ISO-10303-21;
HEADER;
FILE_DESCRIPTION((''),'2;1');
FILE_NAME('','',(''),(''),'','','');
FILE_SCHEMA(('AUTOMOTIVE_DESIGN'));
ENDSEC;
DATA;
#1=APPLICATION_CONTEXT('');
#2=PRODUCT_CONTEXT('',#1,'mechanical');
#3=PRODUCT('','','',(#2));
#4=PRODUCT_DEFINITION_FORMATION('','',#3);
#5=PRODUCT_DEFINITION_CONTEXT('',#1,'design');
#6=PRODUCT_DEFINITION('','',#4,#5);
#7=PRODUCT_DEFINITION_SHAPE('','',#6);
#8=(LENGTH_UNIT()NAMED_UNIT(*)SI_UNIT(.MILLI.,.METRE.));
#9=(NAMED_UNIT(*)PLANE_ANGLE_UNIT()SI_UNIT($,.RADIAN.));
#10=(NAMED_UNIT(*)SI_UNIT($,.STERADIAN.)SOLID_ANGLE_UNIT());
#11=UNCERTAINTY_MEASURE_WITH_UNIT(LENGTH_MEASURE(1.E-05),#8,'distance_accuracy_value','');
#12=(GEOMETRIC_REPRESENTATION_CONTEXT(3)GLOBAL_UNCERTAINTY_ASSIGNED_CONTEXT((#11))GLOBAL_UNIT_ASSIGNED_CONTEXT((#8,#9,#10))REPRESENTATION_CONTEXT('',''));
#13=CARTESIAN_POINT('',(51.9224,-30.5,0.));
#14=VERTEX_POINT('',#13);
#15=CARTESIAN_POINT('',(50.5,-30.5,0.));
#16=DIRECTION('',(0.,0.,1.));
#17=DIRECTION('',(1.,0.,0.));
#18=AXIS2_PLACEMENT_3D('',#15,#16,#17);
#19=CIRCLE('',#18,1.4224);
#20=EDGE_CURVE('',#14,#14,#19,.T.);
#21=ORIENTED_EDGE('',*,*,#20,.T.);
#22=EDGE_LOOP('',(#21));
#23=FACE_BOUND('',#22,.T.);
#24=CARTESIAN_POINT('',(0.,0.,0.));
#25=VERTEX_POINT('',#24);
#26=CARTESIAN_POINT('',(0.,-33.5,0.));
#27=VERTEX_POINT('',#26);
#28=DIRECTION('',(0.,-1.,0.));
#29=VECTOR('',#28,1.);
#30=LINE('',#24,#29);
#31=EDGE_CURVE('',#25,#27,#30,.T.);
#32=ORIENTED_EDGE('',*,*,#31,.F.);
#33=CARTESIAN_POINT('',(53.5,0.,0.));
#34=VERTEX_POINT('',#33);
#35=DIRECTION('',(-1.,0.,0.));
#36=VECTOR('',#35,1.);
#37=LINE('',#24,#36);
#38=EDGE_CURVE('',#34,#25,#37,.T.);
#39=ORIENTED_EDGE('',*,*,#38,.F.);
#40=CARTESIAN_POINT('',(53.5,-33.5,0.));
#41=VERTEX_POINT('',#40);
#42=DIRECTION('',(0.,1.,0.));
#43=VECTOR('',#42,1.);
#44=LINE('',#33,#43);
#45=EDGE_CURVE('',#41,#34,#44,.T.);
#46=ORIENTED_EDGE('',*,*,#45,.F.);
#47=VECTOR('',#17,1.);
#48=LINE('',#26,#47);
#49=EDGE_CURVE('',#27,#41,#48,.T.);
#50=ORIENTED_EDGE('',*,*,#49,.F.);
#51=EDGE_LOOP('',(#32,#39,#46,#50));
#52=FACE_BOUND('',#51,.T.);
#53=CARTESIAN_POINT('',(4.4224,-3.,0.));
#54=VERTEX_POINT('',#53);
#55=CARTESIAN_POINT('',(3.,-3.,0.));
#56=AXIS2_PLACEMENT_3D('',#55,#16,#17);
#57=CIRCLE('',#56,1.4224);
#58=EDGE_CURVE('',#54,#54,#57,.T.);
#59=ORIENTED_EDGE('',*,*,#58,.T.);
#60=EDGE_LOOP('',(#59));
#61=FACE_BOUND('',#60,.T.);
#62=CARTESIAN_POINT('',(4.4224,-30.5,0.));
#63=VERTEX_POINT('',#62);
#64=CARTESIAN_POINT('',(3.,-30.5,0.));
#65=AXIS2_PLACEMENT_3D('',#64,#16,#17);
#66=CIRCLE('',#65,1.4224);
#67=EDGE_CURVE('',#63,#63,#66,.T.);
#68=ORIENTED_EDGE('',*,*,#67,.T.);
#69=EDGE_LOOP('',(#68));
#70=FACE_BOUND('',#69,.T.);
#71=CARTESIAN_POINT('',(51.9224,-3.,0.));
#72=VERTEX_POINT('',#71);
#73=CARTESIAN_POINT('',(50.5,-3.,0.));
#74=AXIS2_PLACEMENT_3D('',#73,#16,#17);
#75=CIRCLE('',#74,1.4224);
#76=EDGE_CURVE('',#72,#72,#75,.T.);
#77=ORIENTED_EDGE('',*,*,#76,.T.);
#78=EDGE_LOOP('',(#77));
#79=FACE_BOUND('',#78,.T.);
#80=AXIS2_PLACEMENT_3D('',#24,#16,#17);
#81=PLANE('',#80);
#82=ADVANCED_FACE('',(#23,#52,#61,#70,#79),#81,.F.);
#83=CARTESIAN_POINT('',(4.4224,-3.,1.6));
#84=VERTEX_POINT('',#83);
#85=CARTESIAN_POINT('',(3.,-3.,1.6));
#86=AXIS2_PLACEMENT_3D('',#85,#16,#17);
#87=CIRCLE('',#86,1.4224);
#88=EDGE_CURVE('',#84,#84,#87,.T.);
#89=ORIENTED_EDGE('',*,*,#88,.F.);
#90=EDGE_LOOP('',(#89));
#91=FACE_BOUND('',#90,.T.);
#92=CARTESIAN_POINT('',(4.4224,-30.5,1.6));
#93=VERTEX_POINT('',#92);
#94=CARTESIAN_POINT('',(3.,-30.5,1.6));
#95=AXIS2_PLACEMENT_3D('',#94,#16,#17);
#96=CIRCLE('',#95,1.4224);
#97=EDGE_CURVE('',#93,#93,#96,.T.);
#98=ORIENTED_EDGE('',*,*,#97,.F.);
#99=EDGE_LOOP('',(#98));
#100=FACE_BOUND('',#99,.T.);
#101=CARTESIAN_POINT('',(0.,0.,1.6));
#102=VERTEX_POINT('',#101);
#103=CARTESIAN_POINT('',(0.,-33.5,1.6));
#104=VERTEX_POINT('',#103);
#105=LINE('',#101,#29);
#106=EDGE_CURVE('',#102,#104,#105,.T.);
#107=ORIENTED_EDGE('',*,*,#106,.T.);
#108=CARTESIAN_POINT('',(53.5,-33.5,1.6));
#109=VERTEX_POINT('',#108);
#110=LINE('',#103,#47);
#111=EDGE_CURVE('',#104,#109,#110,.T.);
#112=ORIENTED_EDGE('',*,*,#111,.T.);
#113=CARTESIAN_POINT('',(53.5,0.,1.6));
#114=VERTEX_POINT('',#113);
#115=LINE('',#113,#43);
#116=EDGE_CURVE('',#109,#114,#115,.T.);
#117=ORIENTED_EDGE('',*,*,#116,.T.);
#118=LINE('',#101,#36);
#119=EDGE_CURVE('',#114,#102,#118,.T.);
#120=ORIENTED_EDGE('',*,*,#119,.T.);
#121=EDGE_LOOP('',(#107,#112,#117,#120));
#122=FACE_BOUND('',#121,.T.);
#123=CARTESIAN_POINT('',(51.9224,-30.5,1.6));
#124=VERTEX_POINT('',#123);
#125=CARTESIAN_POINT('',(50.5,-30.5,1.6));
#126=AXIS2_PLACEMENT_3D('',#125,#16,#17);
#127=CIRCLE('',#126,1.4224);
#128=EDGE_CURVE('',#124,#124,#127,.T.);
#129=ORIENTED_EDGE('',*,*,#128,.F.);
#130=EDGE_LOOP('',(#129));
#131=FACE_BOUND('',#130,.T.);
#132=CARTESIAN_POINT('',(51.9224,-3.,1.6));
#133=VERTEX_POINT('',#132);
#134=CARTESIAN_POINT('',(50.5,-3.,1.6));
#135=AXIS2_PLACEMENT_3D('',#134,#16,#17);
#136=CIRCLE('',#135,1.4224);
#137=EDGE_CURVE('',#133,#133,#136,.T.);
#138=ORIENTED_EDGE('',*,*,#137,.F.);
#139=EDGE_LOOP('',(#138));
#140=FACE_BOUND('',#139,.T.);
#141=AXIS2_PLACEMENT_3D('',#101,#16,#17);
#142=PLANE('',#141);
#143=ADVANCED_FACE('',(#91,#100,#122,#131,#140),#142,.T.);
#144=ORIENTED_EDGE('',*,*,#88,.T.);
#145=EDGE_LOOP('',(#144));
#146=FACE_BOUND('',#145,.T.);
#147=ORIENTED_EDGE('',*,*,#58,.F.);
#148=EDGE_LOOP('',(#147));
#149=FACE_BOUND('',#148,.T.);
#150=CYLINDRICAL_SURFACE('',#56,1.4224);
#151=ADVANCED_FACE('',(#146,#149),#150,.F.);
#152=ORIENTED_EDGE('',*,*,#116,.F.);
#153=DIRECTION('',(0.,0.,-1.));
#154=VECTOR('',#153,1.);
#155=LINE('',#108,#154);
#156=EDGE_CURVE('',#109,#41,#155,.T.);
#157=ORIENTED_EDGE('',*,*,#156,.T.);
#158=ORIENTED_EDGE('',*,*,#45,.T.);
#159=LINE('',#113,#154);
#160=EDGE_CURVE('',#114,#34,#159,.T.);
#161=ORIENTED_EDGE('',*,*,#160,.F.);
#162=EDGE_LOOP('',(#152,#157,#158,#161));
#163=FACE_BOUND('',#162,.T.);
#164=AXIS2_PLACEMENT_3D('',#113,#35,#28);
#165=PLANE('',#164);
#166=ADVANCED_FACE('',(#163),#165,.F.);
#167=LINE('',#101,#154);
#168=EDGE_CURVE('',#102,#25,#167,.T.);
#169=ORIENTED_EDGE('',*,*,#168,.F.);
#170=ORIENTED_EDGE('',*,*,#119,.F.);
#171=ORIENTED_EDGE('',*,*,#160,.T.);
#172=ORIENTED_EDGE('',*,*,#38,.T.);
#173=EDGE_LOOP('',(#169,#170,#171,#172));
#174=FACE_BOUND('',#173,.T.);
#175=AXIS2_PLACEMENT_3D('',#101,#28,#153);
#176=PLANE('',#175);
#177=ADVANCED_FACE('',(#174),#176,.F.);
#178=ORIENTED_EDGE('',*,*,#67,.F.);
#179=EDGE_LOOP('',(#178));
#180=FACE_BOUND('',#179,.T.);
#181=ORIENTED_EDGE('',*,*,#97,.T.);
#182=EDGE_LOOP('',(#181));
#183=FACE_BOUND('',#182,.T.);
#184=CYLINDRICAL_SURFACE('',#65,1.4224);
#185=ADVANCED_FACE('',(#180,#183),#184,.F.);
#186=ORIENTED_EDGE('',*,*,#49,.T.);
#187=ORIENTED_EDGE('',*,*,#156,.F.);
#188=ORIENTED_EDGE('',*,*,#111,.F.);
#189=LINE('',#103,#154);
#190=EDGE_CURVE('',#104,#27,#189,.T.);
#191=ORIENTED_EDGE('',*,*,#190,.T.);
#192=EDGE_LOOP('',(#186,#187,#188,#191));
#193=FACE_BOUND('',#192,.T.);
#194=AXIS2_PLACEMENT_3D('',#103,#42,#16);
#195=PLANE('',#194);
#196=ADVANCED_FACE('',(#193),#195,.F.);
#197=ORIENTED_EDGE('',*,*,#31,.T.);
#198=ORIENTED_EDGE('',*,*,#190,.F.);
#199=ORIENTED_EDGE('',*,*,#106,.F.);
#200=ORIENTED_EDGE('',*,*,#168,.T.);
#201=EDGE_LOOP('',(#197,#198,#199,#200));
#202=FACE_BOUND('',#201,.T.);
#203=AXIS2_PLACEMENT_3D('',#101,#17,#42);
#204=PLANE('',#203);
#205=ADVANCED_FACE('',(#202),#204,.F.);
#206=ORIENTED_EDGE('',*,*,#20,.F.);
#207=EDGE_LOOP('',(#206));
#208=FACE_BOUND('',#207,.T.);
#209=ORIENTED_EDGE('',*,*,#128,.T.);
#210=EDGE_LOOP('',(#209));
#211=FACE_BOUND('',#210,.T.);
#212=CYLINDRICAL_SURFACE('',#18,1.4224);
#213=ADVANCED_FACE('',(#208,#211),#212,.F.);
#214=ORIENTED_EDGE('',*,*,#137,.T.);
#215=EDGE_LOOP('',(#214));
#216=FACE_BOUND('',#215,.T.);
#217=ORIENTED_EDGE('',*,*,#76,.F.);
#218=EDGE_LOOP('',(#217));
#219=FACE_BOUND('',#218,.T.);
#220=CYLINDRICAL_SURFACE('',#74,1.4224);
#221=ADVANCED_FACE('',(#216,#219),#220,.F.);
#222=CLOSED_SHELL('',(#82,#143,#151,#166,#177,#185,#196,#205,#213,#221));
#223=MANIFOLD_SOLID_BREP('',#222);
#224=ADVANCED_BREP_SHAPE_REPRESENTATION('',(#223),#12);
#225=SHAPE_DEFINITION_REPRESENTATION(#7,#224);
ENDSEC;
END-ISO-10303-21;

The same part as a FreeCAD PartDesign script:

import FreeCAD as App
import Part
import Sketcher

V = App.Vector

doc = App.newDocument("Part")
body = doc.addObject("PartDesign::Body", "Body")

# Sketch on XY plane
sketch1 = body.newObject("Sketcher::SketchObject", "Sketch")
sketch1.AttachmentSupport = (doc.getObject("XY_Plane"), [""])
sketch1.MapMode = "FlatFace"
sketch1.addGeometry(Part.LineSegment(V(0, 0, 0), V(0, -33.5, 0)), False)
sketch1.addGeometry(Part.LineSegment(V(0, -33.5, 0), V(53.5, -33.5, 0)), False)
sketch1.addGeometry(Part.LineSegment(V(53.5, -33.5, 0), V(53.5, 0, 0)), False)
sketch1.addGeometry(Part.LineSegment(V(53.5, 0, 0), V(0, 0, 0)), False)
sketch1.addConstraint(Sketcher.Constraint("Coincident", 0, 2, 1, 1))
sketch1.addConstraint(Sketcher.Constraint("Coincident", 1, 2, 2, 1))
sketch1.addConstraint(Sketcher.Constraint("Coincident", 2, 2, 3, 1))
sketch1.addConstraint(Sketcher.Constraint("Coincident", 3, 2, 0, 1))
sketch1.addConstraint(Sketcher.Constraint("Vertical", 0))
sketch1.addConstraint(Sketcher.Constraint("Horizontal", 1))
sketch1.addConstraint(Sketcher.Constraint("Vertical", 2))
sketch1.addConstraint(Sketcher.Constraint("Horizontal", 3))
sketch1.addConstraint(Sketcher.Constraint("Coincident", 3, 2, -1, 1))
sketch1.addConstraint(Sketcher.Constraint("DistanceX", 1, 1, 1, 2, 53.5))
sketch1.addConstraint(Sketcher.Constraint("DistanceY", 0, 2, 0, 1, 33.5))
pad1 = body.newObject("PartDesign::Pad", "Pad")
pad1.Profile = sketch1
pad1.Length = 1.6

# Sketch on XY plane
sketch2 = body.newObject("Sketcher::SketchObject", "Sketch001")
sketch2.AttachmentSupport = (doc.getObject("XY_Plane"), [""])
sketch2.MapMode = "FlatFace"
sketch2.AttachmentOffset = App.Placement(V(0, 0, 1.6), App.Rotation())
sketch2.addGeometry(Part.Circle(V(3, -3, 0), V(0, 0, 1), 1.4224), False)
sketch2.addGeometry(Part.Circle(V(50.5, -3, 0), V(0, 0, 1), 1.4224), False)
sketch2.addGeometry(Part.Circle(V(3, -30.5, 0), V(0, 0, 1), 1.4224), False)
sketch2.addGeometry(Part.Circle(V(50.5, -30.5, 0), V(0, 0, 1), 1.4224), False)
sketch2.addConstraint(Sketcher.Constraint("Equal", 0, 1))
sketch2.addConstraint(Sketcher.Constraint("Equal", 1, 2))
sketch2.addConstraint(Sketcher.Constraint("Equal", 2, 3))
sketch2.addConstraint(Sketcher.Constraint("Horizontal", 0, 3, 1, 3))
sketch2.addConstraint(Sketcher.Constraint("Horizontal", 2, 3, 3, 3))
sketch2.addConstraint(Sketcher.Constraint("Vertical", 0, 3, 2, 3))
sketch2.addConstraint(Sketcher.Constraint("Vertical", 1, 3, 3, 3))
sketch2.addConstraint(Sketcher.Constraint("DistanceX", -1, 1, 0, 3, 3.0))
sketch2.addConstraint(Sketcher.Constraint("DistanceY", 0, 3, -1, 1, 3.0))
sketch2.addConstraint(Sketcher.Constraint("Diameter", 0, 2.8448))
sketch2.addConstraint(Sketcher.Constraint("DistanceX", -1, 1, 1, 3, 50.5))
sketch2.addConstraint(Sketcher.Constraint("DistanceY", 2, 3, -1, 1, 30.5))
pocket1 = body.newObject("PartDesign::Pocket", "Pocket")
pocket1.Profile = sketch2
pocket1.Type = "ThroughAll"

doc.recompute()
